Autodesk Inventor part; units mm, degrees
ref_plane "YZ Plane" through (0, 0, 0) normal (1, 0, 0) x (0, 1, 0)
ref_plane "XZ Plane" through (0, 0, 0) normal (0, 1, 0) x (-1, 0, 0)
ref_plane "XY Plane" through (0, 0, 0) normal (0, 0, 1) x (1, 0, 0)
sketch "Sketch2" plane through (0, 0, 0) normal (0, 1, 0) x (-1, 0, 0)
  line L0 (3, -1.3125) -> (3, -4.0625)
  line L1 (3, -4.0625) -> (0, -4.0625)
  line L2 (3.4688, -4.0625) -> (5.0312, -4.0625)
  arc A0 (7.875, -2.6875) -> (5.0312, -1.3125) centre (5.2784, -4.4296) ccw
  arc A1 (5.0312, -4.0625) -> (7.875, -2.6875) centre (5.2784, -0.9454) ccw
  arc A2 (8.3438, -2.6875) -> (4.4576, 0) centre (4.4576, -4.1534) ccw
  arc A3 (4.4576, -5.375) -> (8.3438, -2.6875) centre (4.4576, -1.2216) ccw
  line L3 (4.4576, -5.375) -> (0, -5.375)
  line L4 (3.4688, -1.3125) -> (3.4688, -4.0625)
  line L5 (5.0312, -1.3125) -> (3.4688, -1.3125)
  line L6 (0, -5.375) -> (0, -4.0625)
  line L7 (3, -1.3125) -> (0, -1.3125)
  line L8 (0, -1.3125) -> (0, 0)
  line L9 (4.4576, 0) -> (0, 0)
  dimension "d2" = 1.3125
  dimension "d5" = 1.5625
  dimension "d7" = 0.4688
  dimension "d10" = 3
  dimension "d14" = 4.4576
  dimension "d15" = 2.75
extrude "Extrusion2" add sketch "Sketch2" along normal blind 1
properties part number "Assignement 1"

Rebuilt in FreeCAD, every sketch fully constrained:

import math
import FreeCAD as App
import Part
import Sketcher

V = App.Vector
Q = App.Units.Quantity

doc = App.newDocument("Part")
params = doc.addObject("Spreadsheet::Sheet", "Params")
for row, (alias, value) in enumerate([
    ("sketch1_width", "3 mm"),
    ("sketch1_height", "2.75 mm"),
    ("pad1_length", "1 mm"),
], start=1):
    params.set(f"A{row}", alias)
    params.set(f"B{row}", "=" + value)
    params.setAlias(f"B{row}", alias)

body = doc.addObject("PartDesign::Body", "Body")

# Sketch on XZ plane
sketch1 = body.newObject("Sketcher::SketchObject", "Sketch")
sketch1.AttachmentSupport = (doc.getObject("XZ_Plane"), [""])
sketch1.MapMode = "FlatFace"
sketch1.addGeometry([
    Part.LineSegment(V(0, -1.3, 0), V(-3, -1.3, 0)),  # 0
    Part.LineSegment(V(-3, -1.3, 0), V(-3, -4.1, 0)),  # 1
    Part.LineSegment(V(-3, -4.1, 0), V(0, -4.1, 0)),  # 2
    Part.LineSegment(V(0, -4.1, 0), V(0, -5.4, 0)),  # 3
    Part.LineSegment(V(0, -5.4, 0), V(-4.5, -5.4, 0)),  # 4
    Part.ArcOfCircle(Part.Circle(V(-4.5, -1.2, 0), V(0, 0, 1), 4.2), math.radians(-159), math.radians(-90)),  # 5
    Part.ArcOfCircle(Part.Circle(V(-4.5, -4.2, 0), V(0, 0, 1), 4.2), math.radians(90), math.radians(159)),  # 6
    Part.LineSegment(V(-4.5, 0, 0), V(0, 0, 0)),  # 7
    Part.LineSegment(V(0, 0, 0), V(0, -1.3, 0)),  # 8
    Part.LineSegment(V(-5, -4.1, 0), V(-3.5, -4.1, 0)),  # 9
    Part.LineSegment(V(-3.5, -4.1, 0), V(-3.5, -1.3, 0)),  # 10
    Part.LineSegment(V(-3.5, -1.3, 0), V(-5, -1.3, 0)),  # 11
    Part.ArcOfCircle(Part.Circle(V(-5.3, -4.4, 0), V(0, 0, 1), 3.1), math.radians(85), math.radians(146)),  # 12
    Part.ArcOfCircle(Part.Circle(V(-5.3, -0.9, 0), V(0, 0, 1), 3.1), math.radians(-146), math.radians(-85)),  # 13
], False)
sketch1.addConstraint([
    Sketcher.Constraint("Coincident", 0, 2, 1, 1),
    Sketcher.Constraint("Coincident", 1, 2, 2, 1),
    Sketcher.Constraint("Coincident", 2, 2, 3, 1),
    Sketcher.Constraint("Coincident", 3, 2, 4, 1),
    Sketcher.Constraint("Tangent", 4, 2, 5, 2),
    Sketcher.Constraint("Coincident", 5, 1, 6, 2),
    Sketcher.Constraint("Tangent", 6, 1, 7, 1),
    Sketcher.Constraint("Coincident", 7, 2, 8, 1),
    Sketcher.Constraint("Coincident", 8, 2, 0, 1),
    Sketcher.Constraint("Coincident", 9, 2, 10, 1),
    Sketcher.Constraint("Coincident", 10, 2, 11, 1),
    Sketcher.Constraint("Coincident", 11, 2, 12, 1),
    Sketcher.Constraint("Coincident", 12, 2, 13, 1),
    Sketcher.Constraint("Coincident", 13, 2, 9, 1),
    Sketcher.Constraint("Horizontal", 0),
    Sketcher.Constraint("Vertical", 1),
    Sketcher.Constraint("Horizontal", 2),
    Sketcher.Constraint("Vertical", 3),
    Sketcher.Constraint("Horizontal", 4),
    Sketcher.Constraint("Horizontal", 7),
    Sketcher.Constraint("Vertical", 8),
    Sketcher.Constraint("Horizontal", 9),
    Sketcher.Constraint("Vertical", 10),
    Sketcher.Constraint("Horizontal", 11),
    Sketcher.Constraint("Coincident", 7, 2, -1, 1),
    Sketcher.Constraint("Equal", 5, 6),
    Sketcher.Constraint("Equal", 12, 13),
    Sketcher.Constraint("PointOnObject", 2, 2, -2),
    Sketcher.Constraint("Horizontal", 2, 2, 9, 2),
    Sketcher.Constraint("Horizontal", 8, 2, 10, 2),
    Sketcher.Constraint("Horizontal", 5, 1, 12, 2),
    Sketcher.Constraint("Vertical", 5, 3, 6, 3),
    Sketcher.Constraint("Vertical", 12, 3, 13, 3),
    Sketcher.Constraint("Vertical", 11, 2, 13, 2),
    Sketcher.Constraint("DistanceX", 0, 2, 0, 1, Q("3 mm")),
    Sketcher.Constraint("DistanceY", 1, 2, 1, 1, Q("2.75 mm")),
    Sketcher.Constraint("DistanceX", 4, 2, 4, 1, Q("4.4576 mm")),
    Sketcher.Constraint("DistanceX", 9, 1, 9, 2, Q("1.5624 mm")),
    Sketcher.Constraint("DistanceY", 3, 2, 3, 1, Q("1.3125 mm")),
    Sketcher.Constraint("Radius", 13, Q("3.127 mm")),
    Sketcher.Constraint("Radius", 5, Q("4.1534 mm")),
    Sketcher.Constraint("DistanceX", 9, 2, 1, 2, Q("0.4688 mm")),
    Sketcher.Constraint("DistanceX", 5, 1, 12, 2, Q("0.4687 mm")),
])
sketch1.setExpression("Constraints[34]", "Params.sketch1_width")
sketch1.setExpression("Constraints[35]", "Params.sketch1_height")
pad1 = body.newObject("PartDesign::Pad", "Pad")
pad1.Profile = sketch1
pad1.setExpression("Length", "Params.pad1_length")
pad1.Reversed = True

doc.recompute()
